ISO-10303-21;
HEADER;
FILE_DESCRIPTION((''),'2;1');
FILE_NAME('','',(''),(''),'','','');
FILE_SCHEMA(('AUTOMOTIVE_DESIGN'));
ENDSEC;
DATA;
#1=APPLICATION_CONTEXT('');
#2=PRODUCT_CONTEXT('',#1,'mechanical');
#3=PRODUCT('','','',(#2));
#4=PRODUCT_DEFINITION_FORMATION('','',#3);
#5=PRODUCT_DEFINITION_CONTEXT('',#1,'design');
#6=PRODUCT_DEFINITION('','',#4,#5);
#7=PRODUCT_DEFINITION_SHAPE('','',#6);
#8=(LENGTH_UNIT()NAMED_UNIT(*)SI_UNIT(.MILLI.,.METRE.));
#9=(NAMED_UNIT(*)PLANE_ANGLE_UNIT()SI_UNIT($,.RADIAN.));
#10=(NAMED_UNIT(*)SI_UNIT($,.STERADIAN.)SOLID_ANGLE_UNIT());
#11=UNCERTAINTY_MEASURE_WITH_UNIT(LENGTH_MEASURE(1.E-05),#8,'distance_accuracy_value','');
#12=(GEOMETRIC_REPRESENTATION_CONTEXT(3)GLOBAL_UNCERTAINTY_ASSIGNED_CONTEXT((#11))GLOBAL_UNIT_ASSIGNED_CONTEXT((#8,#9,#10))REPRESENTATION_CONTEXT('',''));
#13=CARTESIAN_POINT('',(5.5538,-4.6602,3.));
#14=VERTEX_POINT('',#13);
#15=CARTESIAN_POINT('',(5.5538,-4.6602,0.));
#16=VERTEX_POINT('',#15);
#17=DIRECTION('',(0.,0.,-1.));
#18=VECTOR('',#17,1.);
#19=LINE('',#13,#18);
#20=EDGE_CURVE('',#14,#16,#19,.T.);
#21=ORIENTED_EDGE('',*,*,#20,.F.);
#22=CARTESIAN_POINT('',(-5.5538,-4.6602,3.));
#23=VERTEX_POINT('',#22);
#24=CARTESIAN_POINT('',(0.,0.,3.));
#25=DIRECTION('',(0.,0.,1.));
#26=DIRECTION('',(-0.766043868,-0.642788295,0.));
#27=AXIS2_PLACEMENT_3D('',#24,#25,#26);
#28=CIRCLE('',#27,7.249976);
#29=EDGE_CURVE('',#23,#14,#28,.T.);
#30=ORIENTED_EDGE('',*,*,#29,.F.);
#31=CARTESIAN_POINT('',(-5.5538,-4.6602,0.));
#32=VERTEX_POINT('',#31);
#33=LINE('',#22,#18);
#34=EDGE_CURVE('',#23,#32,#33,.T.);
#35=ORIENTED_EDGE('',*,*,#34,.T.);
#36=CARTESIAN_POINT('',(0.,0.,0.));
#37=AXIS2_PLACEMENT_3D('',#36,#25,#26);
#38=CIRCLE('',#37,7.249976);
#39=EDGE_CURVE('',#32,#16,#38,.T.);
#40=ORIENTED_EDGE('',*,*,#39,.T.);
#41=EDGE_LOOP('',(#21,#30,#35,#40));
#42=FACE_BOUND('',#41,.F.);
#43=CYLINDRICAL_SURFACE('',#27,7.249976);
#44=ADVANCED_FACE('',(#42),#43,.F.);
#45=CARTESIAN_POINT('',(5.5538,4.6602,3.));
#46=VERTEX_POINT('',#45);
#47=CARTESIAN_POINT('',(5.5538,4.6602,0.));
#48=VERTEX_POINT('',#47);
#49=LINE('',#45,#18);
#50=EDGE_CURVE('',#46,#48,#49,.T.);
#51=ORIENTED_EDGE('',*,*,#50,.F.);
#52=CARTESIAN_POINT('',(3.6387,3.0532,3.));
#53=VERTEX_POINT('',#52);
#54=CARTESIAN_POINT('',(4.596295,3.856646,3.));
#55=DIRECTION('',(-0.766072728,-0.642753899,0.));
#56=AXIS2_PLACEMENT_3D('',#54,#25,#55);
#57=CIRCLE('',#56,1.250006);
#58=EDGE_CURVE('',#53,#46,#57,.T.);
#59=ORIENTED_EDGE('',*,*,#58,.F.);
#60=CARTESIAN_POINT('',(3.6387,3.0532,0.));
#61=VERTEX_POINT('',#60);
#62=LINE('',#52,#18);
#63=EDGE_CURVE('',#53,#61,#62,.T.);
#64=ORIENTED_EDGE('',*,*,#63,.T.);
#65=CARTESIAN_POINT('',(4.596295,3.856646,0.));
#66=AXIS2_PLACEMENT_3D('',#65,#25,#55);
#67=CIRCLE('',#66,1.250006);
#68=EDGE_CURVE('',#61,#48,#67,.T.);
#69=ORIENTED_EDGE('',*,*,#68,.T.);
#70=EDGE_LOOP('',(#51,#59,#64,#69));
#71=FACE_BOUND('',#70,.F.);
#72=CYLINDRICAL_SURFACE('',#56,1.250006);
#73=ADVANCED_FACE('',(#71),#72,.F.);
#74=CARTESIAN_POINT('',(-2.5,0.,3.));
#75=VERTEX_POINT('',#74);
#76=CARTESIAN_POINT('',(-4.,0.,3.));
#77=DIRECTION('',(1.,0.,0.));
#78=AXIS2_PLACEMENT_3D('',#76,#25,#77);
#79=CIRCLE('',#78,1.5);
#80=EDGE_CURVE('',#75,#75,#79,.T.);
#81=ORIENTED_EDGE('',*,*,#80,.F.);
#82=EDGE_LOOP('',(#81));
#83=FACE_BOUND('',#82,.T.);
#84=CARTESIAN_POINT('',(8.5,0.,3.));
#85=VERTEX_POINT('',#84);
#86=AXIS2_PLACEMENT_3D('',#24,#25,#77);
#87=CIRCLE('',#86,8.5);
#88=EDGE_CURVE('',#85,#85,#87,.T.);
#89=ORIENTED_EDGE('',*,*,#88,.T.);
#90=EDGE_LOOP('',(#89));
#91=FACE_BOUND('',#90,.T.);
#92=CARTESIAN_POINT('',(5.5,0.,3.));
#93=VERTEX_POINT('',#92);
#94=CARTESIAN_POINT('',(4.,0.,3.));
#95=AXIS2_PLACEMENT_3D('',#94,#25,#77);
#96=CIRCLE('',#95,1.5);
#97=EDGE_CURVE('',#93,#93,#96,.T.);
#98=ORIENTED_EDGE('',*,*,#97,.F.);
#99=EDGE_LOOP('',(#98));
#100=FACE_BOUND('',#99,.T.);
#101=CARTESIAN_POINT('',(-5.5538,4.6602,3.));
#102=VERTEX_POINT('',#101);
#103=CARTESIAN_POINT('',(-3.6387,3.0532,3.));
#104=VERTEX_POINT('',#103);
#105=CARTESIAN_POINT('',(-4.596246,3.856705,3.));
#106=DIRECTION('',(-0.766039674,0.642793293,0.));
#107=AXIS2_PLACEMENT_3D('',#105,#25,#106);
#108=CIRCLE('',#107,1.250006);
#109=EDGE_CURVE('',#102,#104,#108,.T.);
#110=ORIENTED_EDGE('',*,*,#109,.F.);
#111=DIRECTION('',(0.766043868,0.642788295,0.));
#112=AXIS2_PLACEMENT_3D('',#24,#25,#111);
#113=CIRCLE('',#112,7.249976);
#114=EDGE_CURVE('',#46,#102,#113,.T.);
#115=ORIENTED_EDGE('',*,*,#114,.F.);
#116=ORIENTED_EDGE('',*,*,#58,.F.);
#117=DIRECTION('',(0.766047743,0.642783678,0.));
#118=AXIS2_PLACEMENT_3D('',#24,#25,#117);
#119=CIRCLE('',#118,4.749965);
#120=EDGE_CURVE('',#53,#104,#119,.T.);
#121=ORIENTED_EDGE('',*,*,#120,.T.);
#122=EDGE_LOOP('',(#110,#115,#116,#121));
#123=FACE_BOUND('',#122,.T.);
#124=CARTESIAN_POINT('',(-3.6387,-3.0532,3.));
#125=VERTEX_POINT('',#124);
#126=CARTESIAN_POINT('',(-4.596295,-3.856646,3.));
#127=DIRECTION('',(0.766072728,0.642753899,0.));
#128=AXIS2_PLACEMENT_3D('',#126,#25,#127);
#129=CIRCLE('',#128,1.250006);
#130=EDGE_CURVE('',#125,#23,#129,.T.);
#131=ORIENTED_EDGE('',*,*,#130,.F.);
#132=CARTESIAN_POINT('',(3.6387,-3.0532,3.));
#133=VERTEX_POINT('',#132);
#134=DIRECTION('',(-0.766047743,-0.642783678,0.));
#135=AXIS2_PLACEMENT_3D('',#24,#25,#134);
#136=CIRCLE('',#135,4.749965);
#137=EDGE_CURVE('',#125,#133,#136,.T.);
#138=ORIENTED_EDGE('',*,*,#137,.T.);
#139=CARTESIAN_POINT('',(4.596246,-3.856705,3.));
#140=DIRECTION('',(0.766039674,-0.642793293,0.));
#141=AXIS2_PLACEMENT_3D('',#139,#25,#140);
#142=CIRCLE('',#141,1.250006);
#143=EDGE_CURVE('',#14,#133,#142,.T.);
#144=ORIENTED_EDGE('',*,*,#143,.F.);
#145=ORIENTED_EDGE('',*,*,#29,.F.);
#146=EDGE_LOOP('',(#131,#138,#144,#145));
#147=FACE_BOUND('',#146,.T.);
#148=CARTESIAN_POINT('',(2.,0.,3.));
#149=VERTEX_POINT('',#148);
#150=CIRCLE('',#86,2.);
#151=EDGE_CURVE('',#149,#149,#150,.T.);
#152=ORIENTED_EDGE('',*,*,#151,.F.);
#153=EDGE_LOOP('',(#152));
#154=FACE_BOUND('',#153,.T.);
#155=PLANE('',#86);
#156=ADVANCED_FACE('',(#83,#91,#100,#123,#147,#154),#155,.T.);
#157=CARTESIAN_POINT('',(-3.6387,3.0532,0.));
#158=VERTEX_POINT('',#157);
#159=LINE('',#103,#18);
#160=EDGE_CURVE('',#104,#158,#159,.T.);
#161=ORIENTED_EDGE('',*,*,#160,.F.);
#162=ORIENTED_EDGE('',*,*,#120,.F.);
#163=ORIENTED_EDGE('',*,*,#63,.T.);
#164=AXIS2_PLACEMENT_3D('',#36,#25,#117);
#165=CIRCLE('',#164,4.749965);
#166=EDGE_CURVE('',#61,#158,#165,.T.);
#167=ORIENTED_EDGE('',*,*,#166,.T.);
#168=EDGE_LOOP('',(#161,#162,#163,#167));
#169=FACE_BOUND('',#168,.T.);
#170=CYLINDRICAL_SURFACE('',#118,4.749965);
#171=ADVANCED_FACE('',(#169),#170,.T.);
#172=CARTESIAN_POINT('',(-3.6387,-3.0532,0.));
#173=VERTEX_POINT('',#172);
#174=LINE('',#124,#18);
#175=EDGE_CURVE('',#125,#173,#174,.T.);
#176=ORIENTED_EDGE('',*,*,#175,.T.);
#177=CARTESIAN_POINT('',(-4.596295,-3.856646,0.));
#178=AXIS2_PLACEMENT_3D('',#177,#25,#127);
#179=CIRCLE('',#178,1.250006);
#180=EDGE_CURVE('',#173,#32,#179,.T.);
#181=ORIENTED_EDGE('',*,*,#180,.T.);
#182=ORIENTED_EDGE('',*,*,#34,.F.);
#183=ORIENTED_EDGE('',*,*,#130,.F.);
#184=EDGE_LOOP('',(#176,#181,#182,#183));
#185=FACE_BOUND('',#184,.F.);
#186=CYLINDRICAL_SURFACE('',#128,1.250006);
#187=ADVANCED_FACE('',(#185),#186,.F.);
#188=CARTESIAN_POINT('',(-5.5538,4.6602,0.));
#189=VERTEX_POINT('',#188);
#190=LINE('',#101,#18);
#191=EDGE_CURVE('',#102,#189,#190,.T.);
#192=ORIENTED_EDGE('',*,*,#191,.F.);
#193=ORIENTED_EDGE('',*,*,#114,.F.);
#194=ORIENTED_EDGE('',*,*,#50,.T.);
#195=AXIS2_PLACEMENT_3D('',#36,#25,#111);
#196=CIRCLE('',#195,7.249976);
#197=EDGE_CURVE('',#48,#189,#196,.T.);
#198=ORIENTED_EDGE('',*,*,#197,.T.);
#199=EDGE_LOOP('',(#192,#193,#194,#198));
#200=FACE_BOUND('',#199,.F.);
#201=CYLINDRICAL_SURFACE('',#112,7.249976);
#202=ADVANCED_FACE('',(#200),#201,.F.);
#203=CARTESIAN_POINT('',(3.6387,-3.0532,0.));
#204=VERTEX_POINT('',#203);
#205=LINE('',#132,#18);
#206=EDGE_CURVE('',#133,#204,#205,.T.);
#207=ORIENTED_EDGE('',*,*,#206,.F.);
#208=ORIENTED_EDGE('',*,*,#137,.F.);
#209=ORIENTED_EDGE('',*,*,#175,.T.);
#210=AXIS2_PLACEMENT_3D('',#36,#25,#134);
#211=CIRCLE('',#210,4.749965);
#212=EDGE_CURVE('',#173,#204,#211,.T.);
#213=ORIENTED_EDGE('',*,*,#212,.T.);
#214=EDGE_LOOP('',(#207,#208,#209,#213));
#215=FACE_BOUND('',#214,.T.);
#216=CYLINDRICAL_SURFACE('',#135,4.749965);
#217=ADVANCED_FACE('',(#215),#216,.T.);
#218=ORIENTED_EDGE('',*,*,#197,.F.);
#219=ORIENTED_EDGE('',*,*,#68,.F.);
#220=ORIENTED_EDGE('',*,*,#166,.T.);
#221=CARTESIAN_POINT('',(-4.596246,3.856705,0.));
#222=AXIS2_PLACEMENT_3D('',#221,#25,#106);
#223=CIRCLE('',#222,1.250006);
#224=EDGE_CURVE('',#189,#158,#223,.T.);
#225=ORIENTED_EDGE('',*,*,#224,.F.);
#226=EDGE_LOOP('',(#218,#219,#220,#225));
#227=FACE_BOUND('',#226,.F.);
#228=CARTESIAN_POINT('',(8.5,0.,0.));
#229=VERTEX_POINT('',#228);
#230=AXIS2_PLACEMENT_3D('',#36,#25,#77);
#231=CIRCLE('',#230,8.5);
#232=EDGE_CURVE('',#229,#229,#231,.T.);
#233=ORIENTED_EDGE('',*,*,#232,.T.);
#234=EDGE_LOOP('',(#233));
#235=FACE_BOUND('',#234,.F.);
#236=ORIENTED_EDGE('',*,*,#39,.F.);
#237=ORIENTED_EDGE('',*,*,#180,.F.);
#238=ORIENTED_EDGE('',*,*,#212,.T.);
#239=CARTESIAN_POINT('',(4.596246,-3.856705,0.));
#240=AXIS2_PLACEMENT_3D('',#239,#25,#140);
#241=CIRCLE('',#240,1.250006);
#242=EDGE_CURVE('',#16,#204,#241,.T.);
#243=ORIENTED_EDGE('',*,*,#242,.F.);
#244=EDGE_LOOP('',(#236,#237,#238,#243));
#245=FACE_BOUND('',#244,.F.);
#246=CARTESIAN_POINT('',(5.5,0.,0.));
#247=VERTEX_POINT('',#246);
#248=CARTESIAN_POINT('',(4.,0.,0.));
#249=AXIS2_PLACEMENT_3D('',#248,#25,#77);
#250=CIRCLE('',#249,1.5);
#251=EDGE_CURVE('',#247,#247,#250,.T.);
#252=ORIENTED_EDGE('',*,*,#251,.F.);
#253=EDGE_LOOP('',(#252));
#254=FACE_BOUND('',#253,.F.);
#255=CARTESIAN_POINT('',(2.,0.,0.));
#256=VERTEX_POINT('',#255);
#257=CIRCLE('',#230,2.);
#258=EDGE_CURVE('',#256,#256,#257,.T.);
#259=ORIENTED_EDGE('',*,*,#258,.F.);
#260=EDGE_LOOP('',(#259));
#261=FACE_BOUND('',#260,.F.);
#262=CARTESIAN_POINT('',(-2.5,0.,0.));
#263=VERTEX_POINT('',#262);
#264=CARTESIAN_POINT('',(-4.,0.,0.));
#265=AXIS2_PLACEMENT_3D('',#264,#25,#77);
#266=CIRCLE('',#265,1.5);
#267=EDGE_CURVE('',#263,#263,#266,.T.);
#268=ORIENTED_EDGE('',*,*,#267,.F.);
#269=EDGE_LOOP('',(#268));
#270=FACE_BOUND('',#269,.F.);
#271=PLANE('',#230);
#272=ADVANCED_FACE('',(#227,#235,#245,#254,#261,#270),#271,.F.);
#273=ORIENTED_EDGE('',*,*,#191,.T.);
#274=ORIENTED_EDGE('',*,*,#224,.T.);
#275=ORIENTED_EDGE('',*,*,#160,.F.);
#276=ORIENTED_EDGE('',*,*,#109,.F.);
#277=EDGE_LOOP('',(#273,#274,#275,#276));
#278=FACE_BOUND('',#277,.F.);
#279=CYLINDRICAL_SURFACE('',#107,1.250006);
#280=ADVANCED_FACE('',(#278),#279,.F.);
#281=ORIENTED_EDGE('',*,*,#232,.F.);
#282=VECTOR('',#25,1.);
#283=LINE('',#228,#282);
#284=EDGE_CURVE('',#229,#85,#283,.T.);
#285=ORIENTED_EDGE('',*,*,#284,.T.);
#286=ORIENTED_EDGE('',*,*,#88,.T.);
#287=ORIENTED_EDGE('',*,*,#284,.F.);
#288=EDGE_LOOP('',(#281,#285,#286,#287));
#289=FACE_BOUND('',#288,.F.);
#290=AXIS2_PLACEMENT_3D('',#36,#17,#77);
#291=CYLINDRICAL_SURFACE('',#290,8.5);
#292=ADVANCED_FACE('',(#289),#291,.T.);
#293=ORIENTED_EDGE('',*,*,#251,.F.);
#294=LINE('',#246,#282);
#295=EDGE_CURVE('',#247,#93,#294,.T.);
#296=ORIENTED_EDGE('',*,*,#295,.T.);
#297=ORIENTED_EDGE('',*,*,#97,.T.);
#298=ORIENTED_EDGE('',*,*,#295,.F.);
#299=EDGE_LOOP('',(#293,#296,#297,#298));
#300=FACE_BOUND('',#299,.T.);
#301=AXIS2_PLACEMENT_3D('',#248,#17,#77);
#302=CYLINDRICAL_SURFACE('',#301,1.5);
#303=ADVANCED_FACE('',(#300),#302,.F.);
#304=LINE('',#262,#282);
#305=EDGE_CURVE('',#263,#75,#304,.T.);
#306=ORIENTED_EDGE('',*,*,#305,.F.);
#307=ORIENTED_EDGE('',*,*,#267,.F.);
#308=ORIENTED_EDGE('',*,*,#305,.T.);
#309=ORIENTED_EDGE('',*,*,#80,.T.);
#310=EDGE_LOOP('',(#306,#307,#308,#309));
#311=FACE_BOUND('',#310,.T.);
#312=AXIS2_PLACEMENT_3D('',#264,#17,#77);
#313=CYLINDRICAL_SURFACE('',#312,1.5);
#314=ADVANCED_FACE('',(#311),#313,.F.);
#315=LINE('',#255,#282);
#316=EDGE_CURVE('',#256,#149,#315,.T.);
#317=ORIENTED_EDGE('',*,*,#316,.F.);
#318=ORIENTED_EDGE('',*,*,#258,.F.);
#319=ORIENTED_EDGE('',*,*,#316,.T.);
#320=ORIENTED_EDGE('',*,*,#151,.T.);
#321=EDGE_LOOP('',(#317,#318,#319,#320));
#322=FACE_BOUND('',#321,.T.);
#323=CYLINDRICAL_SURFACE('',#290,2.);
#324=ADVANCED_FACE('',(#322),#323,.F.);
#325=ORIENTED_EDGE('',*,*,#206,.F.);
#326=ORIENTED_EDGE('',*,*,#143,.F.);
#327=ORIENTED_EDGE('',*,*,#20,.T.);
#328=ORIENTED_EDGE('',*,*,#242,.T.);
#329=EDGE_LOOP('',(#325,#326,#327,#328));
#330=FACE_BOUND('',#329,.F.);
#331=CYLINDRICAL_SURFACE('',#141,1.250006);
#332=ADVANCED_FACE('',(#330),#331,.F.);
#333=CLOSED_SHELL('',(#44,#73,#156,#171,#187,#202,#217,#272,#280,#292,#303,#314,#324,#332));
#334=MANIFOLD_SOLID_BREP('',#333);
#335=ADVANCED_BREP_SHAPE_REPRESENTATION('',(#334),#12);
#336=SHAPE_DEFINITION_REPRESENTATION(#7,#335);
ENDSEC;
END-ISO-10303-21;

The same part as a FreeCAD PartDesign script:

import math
import FreeCAD as App
import Part
import Sketcher
from FreeCAD import Vector
Q = App.Units.Quantity

doc = App.newDocument("Part")
body = doc.addObject("PartDesign::Body", "Body")

# Sketch on XY plane
sketch1 = doc.addObject("Sketcher::SketchObject", "Sketch")
body.addObject(sketch1)
sketch1.AttachmentSupport = (doc.XY_Plane, [""])
sketch1.MapMode = "FlatFace"
sketch1.addGeometry([
    Part.Circle(Vector(0, 0, 0), Vector(0, 0, 1), 8.5),
    Part.Circle(Vector(-4, 0, 0), Vector(0, 0, 1), 1.5),
    Part.Circle(Vector(0, 0, 0), Vector(0, 0, 1), 2),
    Part.Circle(Vector(4, 0, 0), Vector(0, 0, 1), 1.5),
], False)
sketch1.addConstraint([
    Sketcher.Constraint("Coincident", 0, 3, -1, 1),
    Sketcher.Constraint("Coincident", 2, 3, -1, 1),
    Sketcher.Constraint("Equal", 1, 3),
    Sketcher.Constraint("Symmetric", 1, 3, 3, 3, -1, 1),
    Sketcher.Constraint("PointOnObject", 1, 3, -1),
    Sketcher.Constraint("Diameter", 0, Q("17 mm")),
    Sketcher.Constraint("Diameter", 1, Q("3 mm")),
    Sketcher.Constraint("Diameter", 2, Q("4 mm")),
    Sketcher.Constraint("DistanceX", 1, 3, -1, 1, Q("4 mm")),
])
pad1 = doc.addObject("PartDesign::Pad", "Pad")
body.addObject(pad1)
pad1.Profile = sketch1
pad1.Length = 3

# Sketch on XY plane
sketch2 = doc.addObject("Sketcher::SketchObject", "Sketch001")
body.addObject(sketch2)
sketch2.AttachmentSupport = (doc.XY_Plane, [""])
sketch2.MapMode = "FlatFace"
sketch2.AttachmentOffset = App.Placement(Vector(0, 0, 3), App.Rotation())
sketch2.addGeometry([
    Part.ArcOfCircle(Part.Circle(Vector(-4.6, 3.9, 0), Vector(0, 0, 1), 1.2), math.radians(140), math.radians(320)),  # 0
    Part.ArcOfCircle(Part.Circle(Vector(0, 0, 0), Vector(0, 0, 1), 4.7), math.radians(40), math.radians(140)),  # 1
    Part.ArcOfCircle(Part.Circle(Vector(4.6, 3.9, 0), Vector(0, 0, 1), 1.3), math.radians(-140), math.radians(40)),  # 2
    Part.ArcOfCircle(Part.Circle(Vector(0, 0, 0), Vector(0, 0, 1), 7.2), math.radians(40), math.radians(140)),  # 3
    Part.ArcOfCircle(Part.Circle(Vector(-4.6, -3.9, 0), Vector(0, 0, 1), 1.3), math.radians(40), math.radians(220)),  # 4
    Part.ArcOfCircle(Part.Circle(Vector(0, 0, 0), Vector(0, 0, 1), 7.2), math.radians(-140), math.radians(-40)),  # 5
    Part.ArcOfCircle(Part.Circle(Vector(4.6, -3.9, 0), Vector(0, 0, 1), 1.2), math.radians(-40), math.radians(140)),  # 6
    Part.ArcOfCircle(Part.Circle(Vector(0, 0, 0), Vector(0, 0, 1), 4.7), math.radians(-140), math.radians(-40)),  # 7
], False)
sketch2.addConstraint([
    Sketcher.Constraint("Tangent", 0, 2, 1, 2),
    Sketcher.Constraint("Tangent", 1, 1, 2, 1),
    Sketcher.Constraint("Tangent", 2, 2, 3, 1),
    Sketcher.Constraint("Tangent", 3, 2, 0, 1),
    Sketcher.Constraint("Tangent", 4, 2, 5, 1),
    Sketcher.Constraint("Tangent", 5, 2, 6, 1),
    Sketcher.Constraint("Tangent", 6, 2, 7, 2),
    Sketcher.Constraint("Tangent", 7, 1, 4, 1),
    Sketcher.Constraint("Coincident", 1, 3, -1, 1),
    Sketcher.Constraint("Coincident", 3, 3, -1, 1),
    Sketcher.Constraint("Coincident", 5, 3, -1, 1),
    Sketcher.Constraint("Coincident", 7, 3, -1, 1),
    Sketcher.Constraint("Equal", 2, 4),
    Sketcher.Constraint("Equal", 3, 5),
    Sketcher.Constraint("Horizontal", 0, 3, 2, 3),
    Sketcher.Constraint("Horizontal", 4, 3, 6, 3),
    Sketcher.Constraint("Vertical", 0, 3, 4, 3),
    Sketcher.Constraint("Radius", 0, Q("1.25 mm")),
    Sketcher.Constraint("Radius", 1, Q("4.75 mm")),
    Sketcher.Constraint("DistanceY", 1, 1, 2, 2, Q("1.607 mm")),
])
pocket1 = doc.addObject("PartDesign::Pocket", "Pocket")
body.addObject(pocket1)
pocket1.Profile = sketch2
pocket1.Length = 3

doc.recompute()
